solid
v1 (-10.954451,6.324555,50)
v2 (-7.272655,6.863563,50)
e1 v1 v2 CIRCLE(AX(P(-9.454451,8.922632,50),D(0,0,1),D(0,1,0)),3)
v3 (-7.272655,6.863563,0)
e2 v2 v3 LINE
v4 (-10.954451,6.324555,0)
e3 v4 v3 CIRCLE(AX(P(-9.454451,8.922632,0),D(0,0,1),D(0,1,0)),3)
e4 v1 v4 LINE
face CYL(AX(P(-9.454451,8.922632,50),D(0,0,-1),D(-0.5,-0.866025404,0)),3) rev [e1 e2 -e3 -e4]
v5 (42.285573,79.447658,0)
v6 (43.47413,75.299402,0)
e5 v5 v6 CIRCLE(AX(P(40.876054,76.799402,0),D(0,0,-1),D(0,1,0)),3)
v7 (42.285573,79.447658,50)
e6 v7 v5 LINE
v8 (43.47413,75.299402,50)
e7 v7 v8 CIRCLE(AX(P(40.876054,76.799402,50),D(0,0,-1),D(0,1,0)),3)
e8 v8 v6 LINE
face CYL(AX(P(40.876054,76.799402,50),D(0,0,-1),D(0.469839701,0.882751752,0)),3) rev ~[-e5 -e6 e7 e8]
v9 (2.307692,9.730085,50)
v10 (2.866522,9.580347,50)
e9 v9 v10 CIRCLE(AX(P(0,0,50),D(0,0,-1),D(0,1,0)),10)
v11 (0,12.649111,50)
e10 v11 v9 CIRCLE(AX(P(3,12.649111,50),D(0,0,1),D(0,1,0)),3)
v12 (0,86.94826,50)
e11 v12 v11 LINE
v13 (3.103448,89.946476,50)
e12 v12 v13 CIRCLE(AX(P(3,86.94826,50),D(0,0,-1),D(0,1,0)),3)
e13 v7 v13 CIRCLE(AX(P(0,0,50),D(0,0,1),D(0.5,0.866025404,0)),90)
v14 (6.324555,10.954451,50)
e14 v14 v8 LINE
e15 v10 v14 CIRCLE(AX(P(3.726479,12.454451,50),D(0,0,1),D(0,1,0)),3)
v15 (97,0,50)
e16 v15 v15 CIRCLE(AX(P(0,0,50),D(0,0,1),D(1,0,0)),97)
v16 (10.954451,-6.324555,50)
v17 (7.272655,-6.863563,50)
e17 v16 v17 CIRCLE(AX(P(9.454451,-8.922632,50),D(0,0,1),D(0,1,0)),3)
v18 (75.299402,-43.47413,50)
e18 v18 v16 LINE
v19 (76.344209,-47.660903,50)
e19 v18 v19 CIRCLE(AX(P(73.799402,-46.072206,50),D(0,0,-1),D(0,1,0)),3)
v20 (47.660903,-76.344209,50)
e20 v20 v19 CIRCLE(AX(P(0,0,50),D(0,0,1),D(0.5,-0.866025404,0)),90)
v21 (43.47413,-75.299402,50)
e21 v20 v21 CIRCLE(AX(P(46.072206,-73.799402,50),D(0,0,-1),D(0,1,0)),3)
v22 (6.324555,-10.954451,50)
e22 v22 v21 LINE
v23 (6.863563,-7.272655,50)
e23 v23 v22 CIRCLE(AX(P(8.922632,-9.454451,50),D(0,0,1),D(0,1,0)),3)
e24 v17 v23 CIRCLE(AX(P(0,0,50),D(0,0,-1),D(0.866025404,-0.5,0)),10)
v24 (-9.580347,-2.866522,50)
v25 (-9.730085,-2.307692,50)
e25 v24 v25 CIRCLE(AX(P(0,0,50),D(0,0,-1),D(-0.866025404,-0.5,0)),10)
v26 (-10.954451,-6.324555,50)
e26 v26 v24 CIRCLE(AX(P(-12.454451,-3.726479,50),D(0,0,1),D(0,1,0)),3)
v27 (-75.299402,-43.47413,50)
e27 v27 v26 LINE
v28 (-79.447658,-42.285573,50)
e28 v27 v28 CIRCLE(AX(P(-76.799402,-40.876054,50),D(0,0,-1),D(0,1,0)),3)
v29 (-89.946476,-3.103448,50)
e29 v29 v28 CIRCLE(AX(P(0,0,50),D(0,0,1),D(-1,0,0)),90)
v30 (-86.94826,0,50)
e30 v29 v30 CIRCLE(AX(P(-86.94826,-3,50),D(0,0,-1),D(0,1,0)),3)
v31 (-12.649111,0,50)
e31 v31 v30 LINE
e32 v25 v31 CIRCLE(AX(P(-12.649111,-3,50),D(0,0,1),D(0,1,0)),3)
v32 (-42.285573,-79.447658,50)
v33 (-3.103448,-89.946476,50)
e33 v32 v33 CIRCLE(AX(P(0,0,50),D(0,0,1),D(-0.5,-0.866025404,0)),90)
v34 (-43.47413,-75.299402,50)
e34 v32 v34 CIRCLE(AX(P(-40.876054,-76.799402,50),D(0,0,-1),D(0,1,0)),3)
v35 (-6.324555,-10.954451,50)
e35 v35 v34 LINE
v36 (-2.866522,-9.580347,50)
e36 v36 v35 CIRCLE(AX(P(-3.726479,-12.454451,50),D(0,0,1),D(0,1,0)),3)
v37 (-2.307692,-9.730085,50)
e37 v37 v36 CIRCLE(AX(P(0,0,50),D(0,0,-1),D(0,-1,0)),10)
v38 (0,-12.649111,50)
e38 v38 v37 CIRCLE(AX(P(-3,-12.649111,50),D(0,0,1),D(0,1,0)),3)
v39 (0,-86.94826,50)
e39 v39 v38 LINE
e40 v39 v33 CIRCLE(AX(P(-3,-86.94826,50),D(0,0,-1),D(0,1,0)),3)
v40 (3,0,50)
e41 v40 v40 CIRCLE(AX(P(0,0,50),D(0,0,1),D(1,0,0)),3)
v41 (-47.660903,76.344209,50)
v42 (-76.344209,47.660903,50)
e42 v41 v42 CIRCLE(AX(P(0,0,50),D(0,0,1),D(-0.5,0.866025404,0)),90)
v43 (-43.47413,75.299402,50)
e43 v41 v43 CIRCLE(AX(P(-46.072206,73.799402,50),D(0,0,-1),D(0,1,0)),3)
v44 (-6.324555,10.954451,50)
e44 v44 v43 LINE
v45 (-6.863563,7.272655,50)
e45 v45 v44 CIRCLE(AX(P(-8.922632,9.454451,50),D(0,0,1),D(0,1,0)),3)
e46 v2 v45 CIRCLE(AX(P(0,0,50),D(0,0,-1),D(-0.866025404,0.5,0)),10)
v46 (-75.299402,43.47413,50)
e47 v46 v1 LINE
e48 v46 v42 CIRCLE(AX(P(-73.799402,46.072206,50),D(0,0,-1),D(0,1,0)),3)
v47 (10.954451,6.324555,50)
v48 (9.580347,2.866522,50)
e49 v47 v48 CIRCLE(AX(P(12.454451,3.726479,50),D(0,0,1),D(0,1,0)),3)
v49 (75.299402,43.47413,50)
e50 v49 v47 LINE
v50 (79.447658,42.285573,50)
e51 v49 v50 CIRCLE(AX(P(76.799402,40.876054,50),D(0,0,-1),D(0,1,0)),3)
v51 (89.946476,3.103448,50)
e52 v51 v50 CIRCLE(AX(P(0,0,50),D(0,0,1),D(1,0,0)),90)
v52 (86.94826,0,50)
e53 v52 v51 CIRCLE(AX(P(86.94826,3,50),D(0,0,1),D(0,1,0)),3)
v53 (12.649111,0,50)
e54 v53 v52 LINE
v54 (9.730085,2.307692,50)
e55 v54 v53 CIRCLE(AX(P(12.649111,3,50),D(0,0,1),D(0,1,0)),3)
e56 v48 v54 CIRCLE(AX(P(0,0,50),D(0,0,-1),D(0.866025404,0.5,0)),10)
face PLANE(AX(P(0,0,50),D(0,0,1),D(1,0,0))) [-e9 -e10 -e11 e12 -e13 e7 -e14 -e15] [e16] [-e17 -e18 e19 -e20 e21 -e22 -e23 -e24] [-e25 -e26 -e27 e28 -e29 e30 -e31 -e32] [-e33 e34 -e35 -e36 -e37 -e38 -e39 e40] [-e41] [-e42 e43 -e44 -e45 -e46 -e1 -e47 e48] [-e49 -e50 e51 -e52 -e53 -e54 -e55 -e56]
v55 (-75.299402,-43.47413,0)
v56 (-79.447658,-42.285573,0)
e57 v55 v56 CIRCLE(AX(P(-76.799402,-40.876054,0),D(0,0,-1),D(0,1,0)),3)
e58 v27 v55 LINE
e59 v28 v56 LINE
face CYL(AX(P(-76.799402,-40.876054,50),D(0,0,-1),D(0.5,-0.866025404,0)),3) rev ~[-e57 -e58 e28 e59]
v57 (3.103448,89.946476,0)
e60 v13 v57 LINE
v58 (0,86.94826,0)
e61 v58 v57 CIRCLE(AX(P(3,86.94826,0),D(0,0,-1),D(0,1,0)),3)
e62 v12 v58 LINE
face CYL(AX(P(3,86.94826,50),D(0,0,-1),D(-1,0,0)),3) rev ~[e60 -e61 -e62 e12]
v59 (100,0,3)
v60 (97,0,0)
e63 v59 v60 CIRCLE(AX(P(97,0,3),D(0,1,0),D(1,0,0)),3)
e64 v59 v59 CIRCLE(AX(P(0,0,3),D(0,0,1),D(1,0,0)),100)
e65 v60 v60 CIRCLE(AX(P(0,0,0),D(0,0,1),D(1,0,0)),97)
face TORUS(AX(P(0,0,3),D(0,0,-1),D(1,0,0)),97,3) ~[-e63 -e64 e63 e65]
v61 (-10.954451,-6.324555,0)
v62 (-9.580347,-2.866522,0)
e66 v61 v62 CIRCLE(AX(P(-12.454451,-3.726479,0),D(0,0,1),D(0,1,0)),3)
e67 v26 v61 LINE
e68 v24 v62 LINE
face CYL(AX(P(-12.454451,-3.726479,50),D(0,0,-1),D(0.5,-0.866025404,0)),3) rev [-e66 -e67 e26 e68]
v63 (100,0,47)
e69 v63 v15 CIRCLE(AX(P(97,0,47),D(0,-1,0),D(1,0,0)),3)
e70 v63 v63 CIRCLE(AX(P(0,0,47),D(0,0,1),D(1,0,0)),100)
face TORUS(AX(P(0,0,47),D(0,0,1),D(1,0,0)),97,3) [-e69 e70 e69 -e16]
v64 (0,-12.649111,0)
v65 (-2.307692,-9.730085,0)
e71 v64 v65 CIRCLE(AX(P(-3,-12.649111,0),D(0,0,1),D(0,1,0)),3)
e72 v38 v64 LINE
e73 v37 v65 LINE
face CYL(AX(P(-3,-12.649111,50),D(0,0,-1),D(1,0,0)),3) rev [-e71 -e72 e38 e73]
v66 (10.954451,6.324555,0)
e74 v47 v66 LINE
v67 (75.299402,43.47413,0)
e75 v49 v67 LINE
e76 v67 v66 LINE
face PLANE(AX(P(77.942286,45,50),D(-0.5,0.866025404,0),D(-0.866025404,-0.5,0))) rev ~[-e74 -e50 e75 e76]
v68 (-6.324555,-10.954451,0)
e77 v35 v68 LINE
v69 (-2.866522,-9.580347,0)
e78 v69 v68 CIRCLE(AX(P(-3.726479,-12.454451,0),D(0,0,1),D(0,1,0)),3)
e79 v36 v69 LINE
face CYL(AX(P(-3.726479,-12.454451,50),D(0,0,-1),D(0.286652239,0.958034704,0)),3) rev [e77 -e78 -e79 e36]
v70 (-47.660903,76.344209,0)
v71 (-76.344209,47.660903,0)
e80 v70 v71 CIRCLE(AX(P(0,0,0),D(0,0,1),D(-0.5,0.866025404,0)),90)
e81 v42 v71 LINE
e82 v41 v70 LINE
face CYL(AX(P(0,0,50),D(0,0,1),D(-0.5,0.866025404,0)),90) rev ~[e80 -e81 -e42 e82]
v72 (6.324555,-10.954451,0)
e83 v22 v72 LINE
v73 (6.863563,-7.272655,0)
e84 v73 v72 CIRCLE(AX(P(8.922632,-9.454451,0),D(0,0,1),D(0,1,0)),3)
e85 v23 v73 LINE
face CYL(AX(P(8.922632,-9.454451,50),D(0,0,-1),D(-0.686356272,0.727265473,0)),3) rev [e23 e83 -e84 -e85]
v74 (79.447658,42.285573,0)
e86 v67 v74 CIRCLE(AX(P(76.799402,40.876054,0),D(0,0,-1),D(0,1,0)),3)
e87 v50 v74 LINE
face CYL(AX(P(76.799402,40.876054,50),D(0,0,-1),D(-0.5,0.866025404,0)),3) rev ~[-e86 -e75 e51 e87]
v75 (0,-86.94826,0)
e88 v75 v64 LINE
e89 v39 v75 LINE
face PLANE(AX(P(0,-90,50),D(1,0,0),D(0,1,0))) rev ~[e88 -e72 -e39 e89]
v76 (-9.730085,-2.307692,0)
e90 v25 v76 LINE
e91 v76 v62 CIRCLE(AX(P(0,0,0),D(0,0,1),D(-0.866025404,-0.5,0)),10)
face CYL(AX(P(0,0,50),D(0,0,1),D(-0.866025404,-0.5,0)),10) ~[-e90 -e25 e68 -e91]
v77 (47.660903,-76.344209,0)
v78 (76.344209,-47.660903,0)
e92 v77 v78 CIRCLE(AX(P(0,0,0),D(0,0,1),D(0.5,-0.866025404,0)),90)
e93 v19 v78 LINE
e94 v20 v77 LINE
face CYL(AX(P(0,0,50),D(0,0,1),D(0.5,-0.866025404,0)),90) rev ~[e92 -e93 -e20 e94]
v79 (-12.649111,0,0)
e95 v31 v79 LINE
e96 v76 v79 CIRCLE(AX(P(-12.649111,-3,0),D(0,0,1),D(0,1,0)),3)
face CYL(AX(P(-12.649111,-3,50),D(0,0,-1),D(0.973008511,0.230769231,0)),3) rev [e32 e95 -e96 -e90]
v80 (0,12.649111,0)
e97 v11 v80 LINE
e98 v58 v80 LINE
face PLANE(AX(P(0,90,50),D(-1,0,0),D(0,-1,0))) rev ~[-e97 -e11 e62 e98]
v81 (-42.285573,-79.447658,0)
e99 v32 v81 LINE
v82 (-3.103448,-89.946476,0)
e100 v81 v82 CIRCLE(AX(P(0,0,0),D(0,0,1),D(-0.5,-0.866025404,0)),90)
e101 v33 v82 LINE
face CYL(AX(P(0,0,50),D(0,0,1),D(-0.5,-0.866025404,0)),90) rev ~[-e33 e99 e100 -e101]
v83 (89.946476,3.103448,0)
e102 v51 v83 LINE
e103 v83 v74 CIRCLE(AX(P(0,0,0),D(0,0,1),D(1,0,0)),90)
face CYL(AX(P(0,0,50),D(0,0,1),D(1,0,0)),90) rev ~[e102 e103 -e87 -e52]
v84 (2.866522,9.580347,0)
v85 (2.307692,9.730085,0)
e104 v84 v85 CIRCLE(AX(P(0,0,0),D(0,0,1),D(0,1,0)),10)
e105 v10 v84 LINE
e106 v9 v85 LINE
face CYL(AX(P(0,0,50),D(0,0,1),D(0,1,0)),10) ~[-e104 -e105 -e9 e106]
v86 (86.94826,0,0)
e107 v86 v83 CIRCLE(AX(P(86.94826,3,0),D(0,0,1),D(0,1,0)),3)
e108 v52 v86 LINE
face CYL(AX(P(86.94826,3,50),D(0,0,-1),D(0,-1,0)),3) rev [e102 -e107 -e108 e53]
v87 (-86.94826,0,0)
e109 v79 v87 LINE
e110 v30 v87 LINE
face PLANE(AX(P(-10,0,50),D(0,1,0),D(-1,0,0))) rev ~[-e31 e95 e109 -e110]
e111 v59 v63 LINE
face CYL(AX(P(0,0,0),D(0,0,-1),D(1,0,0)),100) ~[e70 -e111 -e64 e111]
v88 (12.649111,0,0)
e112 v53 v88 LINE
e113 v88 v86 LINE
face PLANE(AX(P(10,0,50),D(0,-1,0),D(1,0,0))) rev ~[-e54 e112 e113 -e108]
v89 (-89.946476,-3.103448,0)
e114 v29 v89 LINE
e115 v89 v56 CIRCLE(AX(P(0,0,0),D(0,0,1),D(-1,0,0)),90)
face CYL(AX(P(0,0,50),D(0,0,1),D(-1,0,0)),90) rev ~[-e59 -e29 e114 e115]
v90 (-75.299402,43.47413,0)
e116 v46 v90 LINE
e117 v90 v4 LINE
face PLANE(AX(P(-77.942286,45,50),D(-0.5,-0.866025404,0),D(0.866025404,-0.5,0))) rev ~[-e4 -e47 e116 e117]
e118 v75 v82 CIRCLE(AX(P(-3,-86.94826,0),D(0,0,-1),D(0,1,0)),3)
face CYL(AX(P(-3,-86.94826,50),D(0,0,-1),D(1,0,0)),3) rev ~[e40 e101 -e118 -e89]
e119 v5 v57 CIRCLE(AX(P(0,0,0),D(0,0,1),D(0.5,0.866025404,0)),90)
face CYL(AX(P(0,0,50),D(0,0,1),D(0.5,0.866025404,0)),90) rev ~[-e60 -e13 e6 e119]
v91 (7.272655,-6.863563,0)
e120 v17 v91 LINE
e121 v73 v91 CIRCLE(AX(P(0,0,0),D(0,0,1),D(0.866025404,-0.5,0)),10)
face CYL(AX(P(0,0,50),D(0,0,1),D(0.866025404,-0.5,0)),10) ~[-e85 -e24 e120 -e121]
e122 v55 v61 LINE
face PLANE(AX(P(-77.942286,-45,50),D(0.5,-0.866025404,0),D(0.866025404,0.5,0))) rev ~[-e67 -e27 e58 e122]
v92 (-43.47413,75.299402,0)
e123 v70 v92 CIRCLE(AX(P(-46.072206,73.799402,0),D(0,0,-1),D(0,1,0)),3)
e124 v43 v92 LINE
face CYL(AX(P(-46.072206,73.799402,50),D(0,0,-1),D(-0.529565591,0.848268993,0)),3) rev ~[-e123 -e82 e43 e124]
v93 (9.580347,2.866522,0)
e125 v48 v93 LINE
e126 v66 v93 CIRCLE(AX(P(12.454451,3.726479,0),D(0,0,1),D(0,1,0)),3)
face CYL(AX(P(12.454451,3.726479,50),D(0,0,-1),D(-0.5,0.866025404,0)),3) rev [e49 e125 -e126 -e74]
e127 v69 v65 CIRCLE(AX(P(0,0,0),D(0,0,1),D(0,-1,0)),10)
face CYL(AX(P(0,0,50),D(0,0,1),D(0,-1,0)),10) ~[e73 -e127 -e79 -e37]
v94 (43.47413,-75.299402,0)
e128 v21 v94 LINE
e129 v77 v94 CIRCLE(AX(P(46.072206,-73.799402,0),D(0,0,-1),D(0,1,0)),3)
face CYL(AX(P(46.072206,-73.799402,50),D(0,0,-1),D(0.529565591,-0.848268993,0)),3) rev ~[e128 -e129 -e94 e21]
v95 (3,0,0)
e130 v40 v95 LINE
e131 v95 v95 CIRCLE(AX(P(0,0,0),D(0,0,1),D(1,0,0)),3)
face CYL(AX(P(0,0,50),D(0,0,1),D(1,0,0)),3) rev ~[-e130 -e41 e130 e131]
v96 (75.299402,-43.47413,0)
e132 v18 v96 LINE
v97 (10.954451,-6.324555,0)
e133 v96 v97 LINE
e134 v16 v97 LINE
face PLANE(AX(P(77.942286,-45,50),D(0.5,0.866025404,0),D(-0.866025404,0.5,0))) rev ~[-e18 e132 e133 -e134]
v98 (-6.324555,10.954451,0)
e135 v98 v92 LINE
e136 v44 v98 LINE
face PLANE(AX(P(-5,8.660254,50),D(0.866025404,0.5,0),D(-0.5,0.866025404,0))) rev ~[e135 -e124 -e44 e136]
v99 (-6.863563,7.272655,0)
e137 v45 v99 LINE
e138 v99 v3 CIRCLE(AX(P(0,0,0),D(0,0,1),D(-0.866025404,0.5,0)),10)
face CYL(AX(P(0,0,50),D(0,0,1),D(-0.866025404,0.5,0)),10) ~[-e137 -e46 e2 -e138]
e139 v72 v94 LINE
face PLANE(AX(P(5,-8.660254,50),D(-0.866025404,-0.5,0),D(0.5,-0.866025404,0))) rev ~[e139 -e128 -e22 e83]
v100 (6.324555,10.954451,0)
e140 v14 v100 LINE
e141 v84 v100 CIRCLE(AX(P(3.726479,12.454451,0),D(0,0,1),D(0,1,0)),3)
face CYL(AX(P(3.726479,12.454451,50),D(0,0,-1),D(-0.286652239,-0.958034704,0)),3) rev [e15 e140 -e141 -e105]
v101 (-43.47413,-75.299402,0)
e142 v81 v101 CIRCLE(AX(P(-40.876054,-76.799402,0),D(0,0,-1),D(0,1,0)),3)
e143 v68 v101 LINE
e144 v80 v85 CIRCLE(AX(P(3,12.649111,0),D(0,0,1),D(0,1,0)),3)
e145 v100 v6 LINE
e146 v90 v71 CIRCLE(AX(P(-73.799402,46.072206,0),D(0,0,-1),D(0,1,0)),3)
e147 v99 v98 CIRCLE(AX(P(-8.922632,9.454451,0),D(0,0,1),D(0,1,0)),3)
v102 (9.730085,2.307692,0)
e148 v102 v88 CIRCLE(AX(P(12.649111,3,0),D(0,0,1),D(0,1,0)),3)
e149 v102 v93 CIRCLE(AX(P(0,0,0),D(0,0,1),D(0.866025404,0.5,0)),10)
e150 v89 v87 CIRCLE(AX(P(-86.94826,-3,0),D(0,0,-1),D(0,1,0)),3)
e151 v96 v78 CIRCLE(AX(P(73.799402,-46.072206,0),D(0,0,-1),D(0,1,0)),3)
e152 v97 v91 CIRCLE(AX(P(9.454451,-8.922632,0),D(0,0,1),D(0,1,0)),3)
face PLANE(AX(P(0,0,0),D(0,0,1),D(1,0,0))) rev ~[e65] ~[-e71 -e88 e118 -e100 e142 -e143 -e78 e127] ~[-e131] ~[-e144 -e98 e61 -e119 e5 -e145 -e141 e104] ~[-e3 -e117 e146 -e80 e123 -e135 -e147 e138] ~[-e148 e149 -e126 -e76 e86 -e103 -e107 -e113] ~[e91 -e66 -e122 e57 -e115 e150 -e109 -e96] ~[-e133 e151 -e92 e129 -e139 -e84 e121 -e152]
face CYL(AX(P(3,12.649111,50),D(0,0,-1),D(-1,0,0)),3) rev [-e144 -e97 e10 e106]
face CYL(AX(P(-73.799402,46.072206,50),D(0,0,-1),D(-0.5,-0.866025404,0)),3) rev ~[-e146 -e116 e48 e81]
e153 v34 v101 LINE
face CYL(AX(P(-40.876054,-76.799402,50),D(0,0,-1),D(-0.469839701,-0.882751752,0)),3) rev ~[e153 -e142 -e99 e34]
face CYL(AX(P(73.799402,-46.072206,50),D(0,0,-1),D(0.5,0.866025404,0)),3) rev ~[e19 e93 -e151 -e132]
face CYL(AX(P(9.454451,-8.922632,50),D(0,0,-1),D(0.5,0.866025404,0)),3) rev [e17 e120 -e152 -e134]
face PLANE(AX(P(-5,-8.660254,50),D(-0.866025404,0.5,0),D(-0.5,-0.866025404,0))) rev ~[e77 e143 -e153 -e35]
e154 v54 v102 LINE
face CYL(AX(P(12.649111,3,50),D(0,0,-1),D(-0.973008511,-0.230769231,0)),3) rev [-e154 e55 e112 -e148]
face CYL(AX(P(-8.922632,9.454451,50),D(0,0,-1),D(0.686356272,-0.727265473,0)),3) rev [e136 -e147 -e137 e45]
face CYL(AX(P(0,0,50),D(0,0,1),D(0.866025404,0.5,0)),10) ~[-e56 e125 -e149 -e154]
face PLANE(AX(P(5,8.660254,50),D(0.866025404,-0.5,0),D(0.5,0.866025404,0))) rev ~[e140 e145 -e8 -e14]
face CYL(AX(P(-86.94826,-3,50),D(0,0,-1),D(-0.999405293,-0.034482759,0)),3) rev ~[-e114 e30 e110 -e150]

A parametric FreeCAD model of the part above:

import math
import FreeCAD as App
import Part
import Sketcher
from FreeCAD import Vector
Q = App.Units.Quantity


def edges_at(feature, points):
    """Names of the edges that pass closest to the given points."""
    edges = feature.Shape.Edges
    near = lambda p: min(range(len(edges)), key=lambda i: edges[i].distToShape(Part.Vertex(*p))[0])
    return sorted({f"Edge{near(p) + 1}" for p in points})

doc = App.newDocument("Part")
params = doc.addObject("Spreadsheet::Sheet", "Params")
for row, (alias, value) in enumerate([
    ("sketch1_diameter", "200 mm"),
    ("pad1_length", "50 mm"),
    ("sketch2_radius", "10 mm"),
    ("sketch2_radius2", "90 mm"),
    ("fillet_radius", "3 mm"),
    ("sketch3_diameter", "6 mm"),
], start=1):
    params.set(f"A{row}", alias)
    params.set(f"B{row}", "=" + value)
    params.setAlias(f"B{row}", alias)

body = doc.addObject("PartDesign::Body", "Body")

# Sketch on XY plane
sketch1 = doc.addObject("Sketcher::SketchObject", "Sketch")
body.addObject(sketch1)
sketch1.AttachmentSupport = (doc.XY_Plane, [""])
sketch1.MapMode = "FlatFace"
sketch1.addGeometry(Part.Circle(Vector(0, 0, 0), Vector(0, 0, 1), 100), False)
sketch1.addConstraint([
    Sketcher.Constraint("Coincident", 0, 3, -1, 1),
    Sketcher.Constraint("Diameter", 0, 200.0),
])
sketch1.setExpression("Constraints[1]", "Params.sketch1_diameter")
pad1 = doc.addObject("PartDesign::Pad", "Pad")
body.addObject(pad1)
pad1.Profile = sketch1
pad1.setExpression("Length", "Params.pad1_length")

# Sketch on XY plane
sketch2 = doc.addObject("Sketcher::SketchObject", "Sketch001")
body.addObject(sketch2)
sketch2.AttachmentSupport = (doc.XY_Plane, [""])
sketch2.MapMode = "FlatFace"
sketch2.AttachmentOffset = App.Placement(Vector(0, 0, 50), App.Rotation())
sketch2.addGeometry([
    Part.LineSegment(Vector(0, 90, 0), Vector(0, 10, 0)),
    Part.ArcOfCircle(Part.Circle(Vector(0, 0, 0), Vector(0, 0, 1), 10), math.radians(60), math.radians(90)),
    Part.LineSegment(Vector(5, 8.660254, 0), Vector(45, 77.942286, 0)),
    Part.ArcOfCircle(Part.Circle(Vector(0, 0, 0), Vector(0, 0, 1), 90), math.radians(60), math.radians(90)),
], False)
sketch2.addConstraint([
    Sketcher.Constraint("Coincident", 0, 2, 1, 2),
    Sketcher.Constraint("Coincident", 1, 1, 2, 1),
    Sketcher.Constraint("Coincident", 2, 2, 3, 1),
    Sketcher.Constraint("Coincident", 3, 2, 0, 1),
    Sketcher.Constraint("Vertical", 0),
    Sketcher.Constraint("Coincident", 1, 3, -1, 1),
    Sketcher.Constraint("Coincident", 3, 3, -1, 1),
    Sketcher.Constraint("PointOnObject", 0, 2, -2),
    Sketcher.Constraint("Radius", 1, 10.0),
    Sketcher.Constraint("Radius", 3, 90.0),
    Sketcher.Constraint("Angle", 2, Q("60 deg")),
    Sketcher.Constraint("DistanceX", -1, 1, 1, 1, 5.0),
])
sketch2.setExpression("Constraints[8]", "Params.sketch2_radius")
sketch2.setExpression("Constraints[9]", "Params.sketch2_radius2")
pocket1 = doc.addObject("PartDesign::Pocket", "Pocket")
body.addObject(pocket1)
pocket1.Profile = sketch2
pocket1.Type = "ThroughAll"
doc.recompute()

polarpattern = doc.addObject("PartDesign::PolarPattern", "PolarPattern")
body.addObject(polarpattern)
polarpattern.Originals = [pocket1]
polarpattern.Axis = (doc.Z_Axis, [""])
polarpattern.Angle = 360
polarpattern.Occurrences = 6
body.Tip = polarpattern
doc.recompute()

fillet = doc.addObject("PartDesign::Fillet", "Fillet")
body.addObject(fillet)
fillet.Base = (polarpattern, edges_at(polarpattern, [
    (45, 77.942, 25),
    (5, 8.66, 25),
    (0, 10, 25),
    (0, 90, 25),
    (-100, 0, 0),
    (90, 0, 25),
    (10, 0, 25),
    (8.66, 5, 25),
    (77.942, 45, 25),
    (45, -77.942, 25),
    (5, -8.66, 25),
    (8.66, -5, 25),
    (-100, 0, 50),
    (77.942, -45, 25),
    (-90, 0, 25),
    (-10, 0, 25),
    (-8.66, -5, 25),
    (-77.942, -45, 25),
    (-45, -77.942, 25),
    (-5, -8.66, 25),
    (0, -10, 25),
    (0, -90, 25),
    (-45, 77.942, 25),
    (-5, 8.66, 25),
    (-8.66, 5, 25),
    (-77.942, 45, 25),
]))
fillet.setExpression("Radius", "Params.fillet_radius")

# Sketch on XY plane
sketch3 = doc.addObject("Sketcher::SketchObject", "Sketch002")
body.addObject(sketch3)
sketch3.AttachmentSupport = (doc.XY_Plane, [""])
sketch3.MapMode = "FlatFace"
sketch3.AttachmentOffset = App.Placement(Vector(0, 0, 50), App.Rotation())
sketch3.addGeometry(Part.Circle(Vector(0, 0, 0), Vector(0, 0, 1), 3), False)
sketch3.addConstraint([
    Sketcher.Constraint("Coincident", 0, 3, -1, 1),
    Sketcher.Constraint("Diameter", 0, 6.0),
])
sketch3.setExpression("Constraints[1]", "Params.sketch3_diameter")
pocket2 = doc.addObject("PartDesign::Pocket", "Pocket001")
body.addObject(pocket2)
pocket2.Profile = sketch3
pocket2.Type = "ThroughAll"

doc.recompute()
